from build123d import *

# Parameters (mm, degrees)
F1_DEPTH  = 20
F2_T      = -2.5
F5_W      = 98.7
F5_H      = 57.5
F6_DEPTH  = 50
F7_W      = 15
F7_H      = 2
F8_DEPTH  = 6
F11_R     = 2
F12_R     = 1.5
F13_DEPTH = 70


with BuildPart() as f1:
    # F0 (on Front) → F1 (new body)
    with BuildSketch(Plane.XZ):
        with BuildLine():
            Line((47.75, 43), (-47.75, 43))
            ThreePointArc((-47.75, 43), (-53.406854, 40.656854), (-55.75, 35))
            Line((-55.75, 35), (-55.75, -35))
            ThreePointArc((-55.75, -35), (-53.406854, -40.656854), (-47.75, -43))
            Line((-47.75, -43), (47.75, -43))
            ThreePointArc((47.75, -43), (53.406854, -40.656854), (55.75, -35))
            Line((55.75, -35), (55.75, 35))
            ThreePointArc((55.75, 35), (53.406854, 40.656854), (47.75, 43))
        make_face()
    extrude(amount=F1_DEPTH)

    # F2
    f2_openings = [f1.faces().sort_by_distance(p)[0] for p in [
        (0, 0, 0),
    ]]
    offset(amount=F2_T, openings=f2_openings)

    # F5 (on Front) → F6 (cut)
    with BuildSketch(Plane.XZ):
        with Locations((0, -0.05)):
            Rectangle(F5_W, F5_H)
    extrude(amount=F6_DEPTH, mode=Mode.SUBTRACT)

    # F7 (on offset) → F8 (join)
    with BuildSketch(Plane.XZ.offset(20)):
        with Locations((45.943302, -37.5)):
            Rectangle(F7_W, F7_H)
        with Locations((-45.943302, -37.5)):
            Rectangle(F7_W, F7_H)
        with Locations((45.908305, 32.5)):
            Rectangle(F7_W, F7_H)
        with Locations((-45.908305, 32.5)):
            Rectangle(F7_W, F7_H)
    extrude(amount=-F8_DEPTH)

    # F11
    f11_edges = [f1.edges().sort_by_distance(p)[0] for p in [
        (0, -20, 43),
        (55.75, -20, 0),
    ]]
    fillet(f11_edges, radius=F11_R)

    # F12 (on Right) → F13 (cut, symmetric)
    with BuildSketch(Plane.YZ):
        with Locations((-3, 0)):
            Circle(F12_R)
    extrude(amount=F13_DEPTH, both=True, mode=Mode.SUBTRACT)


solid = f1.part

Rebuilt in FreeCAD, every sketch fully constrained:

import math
import FreeCAD as App
import Part
import Sketcher
from FreeCAD import Vector


def edges_at(feature, points):
    """Names of the edges that pass closest to the given points."""
    edges = feature.Shape.Edges
    near = lambda p: min(range(len(edges)), key=lambda i: edges[i].distToShape(Part.Vertex(*p))[0])
    return sorted({f"Edge{near(p) + 1}" for p in points})


def faces_at(feature, points):
    """Names of the faces that lie closest to the given points."""
    faces = feature.Shape.Faces
    near = lambda p: min(range(len(faces)), key=lambda i: faces[i].distToShape(Part.Vertex(*p))[0])
    return sorted({f"Face{near(p) + 1}" for p in points})

doc = App.newDocument("Part")
body = doc.addObject("PartDesign::Body", "Body")

# Sketch on XZ plane
sketch1 = body.newObject("Sketcher::SketchObject", "Sketch")
sketch1.AttachmentSupport = (doc.getObject("XZ_Plane"), [""])
sketch1.MapMode = "FlatFace"
sketch1.addGeometry(Part.LineSegment(Vector(47.75, 43, 0), Vector(-47.75, 43, 0)), False)
sketch1.addGeometry(Part.ArcOfCircle(Part.Circle(Vector(-47.749999, 34.999999, 0), Vector(0, 0, 1), 8.000001), math.radians(90.000006), math.radians(179.999994)), False)
sketch1.addGeometry(Part.LineSegment(Vector(-55.75, 35, 0), Vector(-55.75, -35, 0)), False)
sketch1.addGeometry(Part.ArcOfCircle(Part.Circle(Vector(-47.749999, -34.999999, 0), Vector(0, 0, 1), 8.000001), math.radians(-179.999994), math.radians(-90.000006)), False)
sketch1.addGeometry(Part.LineSegment(Vector(-47.75, -43, 0), Vector(47.75, -43, 0)), False)
sketch1.addGeometry(Part.ArcOfCircle(Part.Circle(Vector(47.749999, -34.999999, 0), Vector(0, 0, 1), 8.000001), math.radians(-89.999994), math.radians(-0.000006)), False)
sketch1.addGeometry(Part.LineSegment(Vector(55.75, -35, 0), Vector(55.75, 35, 0)), False)
sketch1.addGeometry(Part.ArcOfCircle(Part.Circle(Vector(47.749999, 34.999999, 0), Vector(0, 0, 1), 8.000001), math.radians(0.000006), math.radians(89.999994)), False)
sketch1.addConstraint(Sketcher.Constraint("Tangent", 0, 2, 1, 1))
sketch1.addConstraint(Sketcher.Constraint("Tangent", 1, 2, 2, 1))
sketch1.addConstraint(Sketcher.Constraint("Tangent", 2, 2, 3, 1))
sketch1.addConstraint(Sketcher.Constraint("Tangent", 3, 2, 4, 1))
sketch1.addConstraint(Sketcher.Constraint("Tangent", 4, 2, 5, 1))
sketch1.addConstraint(Sketcher.Constraint("Tangent", 5, 2, 6, 1))
sketch1.addConstraint(Sketcher.Constraint("Tangent", 6, 2, 7, 1))
sketch1.addConstraint(Sketcher.Constraint("Tangent", 7, 2, 0, 1))
sketch1.addConstraint(Sketcher.Constraint("Horizontal", 0))
sketch1.addConstraint(Sketcher.Constraint("Vertical", 2))
sketch1.addConstraint(Sketcher.Constraint("Horizontal", 4))
sketch1.addConstraint(Sketcher.Constraint("Vertical", 6))
sketch1.addConstraint(Sketcher.Constraint("Equal", 1, 3))
sketch1.addConstraint(Sketcher.Constraint("Equal", 3, 5))
sketch1.addConstraint(Sketcher.Constraint("Equal", 5, 7))
sketch1.addConstraint(Sketcher.Constraint("Symmetric", 1, 3, 5, 3, -1, 1))
sketch1.addConstraint(Sketcher.Constraint("Radius", 1, 8.000001))
sketch1.addConstraint(Sketcher.Constraint("DistanceY", 2, 2, 2, 1, 70.0))
sketch1.addConstraint(Sketcher.Constraint("DistanceX", 0, 2, 0, 1, 95.5))
pad1 = body.newObject("PartDesign::Pad", "Pad")
pad1.Profile = sketch1
pad1.Length = 20
doc.recompute()

thickness = body.newObject("PartDesign::Thickness", "Thickness")
thickness.Base = (pad1, faces_at(pad1, [(0, 0, 0)]))
thickness.Value = 2.5
thickness.Reversed = True
thickness.Join = "Arc"

# Sketch on XZ plane
sketch2 = body.newObject("Sketcher::SketchObject", "Sketch001")
sketch2.AttachmentSupport = (doc.getObject("XZ_Plane"), [""])
sketch2.MapMode = "FlatFace"
sketch2.addGeometry(Part.LineSegment(Vector(-49.35, 28.7, 0), Vector(-49.35, -28.8, 0)), False)
sketch2.addGeometry(Part.LineSegment(Vector(-49.35, -28.8, 0), Vector(49.35, -28.8, 0)), False)
sketch2.addGeometry(Part.LineSegment(Vector(49.35, -28.8, 0), Vector(49.35, 28.7, 0)), False)
sketch2.addGeometry(Part.LineSegment(Vector(49.35, 28.7, 0), Vector(-49.35, 28.7, 0)), False)
sketch2.addConstraint(Sketcher.Constraint("Coincident", 0, 2, 1, 1))
sketch2.addConstraint(Sketcher.Constraint("Coincident", 1, 2, 2, 1))
sketch2.addConstraint(Sketcher.Constraint("Coincident", 2, 2, 3, 1))
sketch2.addConstraint(Sketcher.Constraint("Coincident", 3, 2, 0, 1))
sketch2.addConstraint(Sketcher.Constraint("Vertical", 0))
sketch2.addConstraint(Sketcher.Constraint("Horizontal", 1))
sketch2.addConstraint(Sketcher.Constraint("Vertical", 2))
sketch2.addConstraint(Sketcher.Constraint("Horizontal", 3))
sketch2.addConstraint(Sketcher.Constraint("DistanceX", 1, 1, 1, 2, 98.7))
sketch2.addConstraint(Sketcher.Constraint("DistanceY", 0, 2, 0, 1, 57.5))
sketch2.addConstraint(Sketcher.Constraint("DistanceY", 0, 2, -1, 1, 28.8))
sketch2.addConstraint(Sketcher.Constraint("DistanceX", 0, 2, -1, 1, 49.35))
pocket1 = body.newObject("PartDesign::Pocket", "Pocket")
pocket1.Profile = sketch2
pocket1.Length = 50
pocket1.Reversed = True

# Sketch on XZ plane
sketch3 = body.newObject("Sketcher::SketchObject", "Sketch002")
sketch3.AttachmentSupport = (doc.getObject("XZ_Plane"), [""])
sketch3.MapMode = "FlatFace"
sketch3.AttachmentOffset = App.Placement(Vector(0, 0, 20), App.Rotation())
sketch3.addGeometry(Part.LineSegment(Vector(38.443302, -36.5, 0), Vector(38.443302, -38.5, 0)), False)
sketch3.addGeometry(Part.LineSegment(Vector(38.443302, -38.5, 0), Vector(53.443302, -38.5, 0)), False)
sketch3.addGeometry(Part.LineSegment(Vector(53.443302, -38.5, 0), Vector(53.443302, -36.5, 0)), False)
sketch3.addGeometry(Part.LineSegment(Vector(53.443302, -36.5, 0), Vector(38.443302, -36.5, 0)), False)
sketch3.addGeometry(Part.LineSegment(Vector(-53.443302, -36.5, 0), Vector(-53.443302, -38.5, 0)), False)
sketch3.addGeometry(Part.LineSegment(Vector(-53.443302, -38.5, 0), Vector(-38.443302, -38.5, 0)), False)
sketch3.addGeometry(Part.LineSegment(Vector(-38.443302, -38.5, 0), Vector(-38.443302, -36.5, 0)), False)
sketch3.addGeometry(Part.LineSegment(Vector(-38.443302, -36.5, 0), Vector(-53.443302, -36.5, 0)), False)
sketch3.addGeometry(Part.LineSegment(Vector(38.408305, 33.5, 0), Vector(38.408305, 31.5, 0)), False)
sketch3.addGeometry(Part.LineSegment(Vector(38.408305, 31.5, 0), Vector(53.408305, 31.5, 0)), False)
sketch3.addGeometry(Part.LineSegment(Vector(53.408305, 31.5, 0), Vector(53.408305, 33.5, 0)), False)
sketch3.addGeometry(Part.LineSegment(Vector(53.408305, 33.5, 0), Vector(38.408305, 33.5, 0)), False)
sketch3.addGeometry(Part.LineSegment(Vector(-53.408305, 33.5, 0), Vector(-53.408305, 31.5, 0)), False)
sketch3.addGeometry(Part.LineSegment(Vector(-53.408305, 31.5, 0), Vector(-38.408305, 31.5, 0)), False)
sketch3.addGeometry(Part.LineSegment(Vector(-38.408305, 31.5, 0), Vector(-38.408305, 33.5, 0)), False)
sketch3.addGeometry(Part.LineSegment(Vector(-38.408305, 33.5, 0), Vector(-53.408305, 33.5, 0)), False)
sketch3.addConstraint(Sketcher.Constraint("Coincident", 0, 2, 1, 1))
sketch3.addConstraint(Sketcher.Constraint("Coincident", 1, 2, 2, 1))
sketch3.addConstraint(Sketcher.Constraint("Coincident", 2, 2, 3, 1))
sketch3.addConstraint(Sketcher.Constraint("Coincident", 3, 2, 0, 1))
sketch3.addConstraint(Sketcher.Constraint("Coincident", 4, 2, 5, 1))
sketch3.addConstraint(Sketcher.Constraint("Coincident", 5, 2, 6, 1))
sketch3.addConstraint(Sketcher.Constraint("Coincident", 6, 2, 7, 1))
sketch3.addConstraint(Sketcher.Constraint("Coincident", 7, 2, 4, 1))
sketch3.addConstraint(Sketcher.Constraint("Coincident", 8, 2, 9, 1))
sketch3.addConstraint(Sketcher.Constraint("Coincident", 9, 2, 10, 1))
sketch3.addConstraint(Sketcher.Constraint("Coincident", 10, 2, 11, 1))
sketch3.addConstraint(Sketcher.Constraint("Coincident", 11, 2, 8, 1))
sketch3.addConstraint(Sketcher.Constraint("Coincident", 12, 2, 13, 1))
sketch3.addConstraint(Sketcher.Constraint("Coincident", 13, 2, 14, 1))
sketch3.addConstraint(Sketcher.Constraint("Coincident", 14, 2, 15, 1))
sketch3.addConstraint(Sketcher.Constraint("Coincident", 15, 2, 12, 1))
sketch3.addConstraint(Sketcher.Constraint("Vertical", 0))
sketch3.addConstraint(Sketcher.Constraint("Horizontal", 1))
sketch3.addConstraint(Sketcher.Constraint("Vertical", 2))
sketch3.addConstraint(Sketcher.Constraint("Horizontal", 3))
sketch3.addConstraint(Sketcher.Constraint("Vertical", 4))
sketch3.addConstraint(Sketcher.Constraint("Horizontal", 5))
sketch3.addConstraint(Sketcher.Constraint("Vertical", 6))
sketch3.addConstraint(Sketcher.Constraint("Horizontal", 7))
sketch3.addConstraint(Sketcher.Constraint("Vertical", 8))
sketch3.addConstraint(Sketcher.Constraint("Horizontal", 9))
sketch3.addConstraint(Sketcher.Constraint("Vertical", 10))
sketch3.addConstraint(Sketcher.Constraint("Horizontal", 11))
sketch3.addConstraint(Sketcher.Constraint("Vertical", 12))
sketch3.addConstraint(Sketcher.Constraint("Horizontal", 13))
sketch3.addConstraint(Sketcher.Constraint("Vertical", 14))
sketch3.addConstraint(Sketcher.Constraint("Horizontal", 15))
sketch3.addConstraint(Sketcher.Constraint("Symmetric", 1, 2, 4, 2, -2))
sketch3.addConstraint(Sketcher.Constraint("Symmetric", 3, 2, 6, 2, -2))
sketch3.addConstraint(Sketcher.Constraint("Symmetric", 9, 2, 12, 2, -2))
sketch3.addConstraint(Sketcher.Constraint("Symmetric", 11, 2, 14, 2, -2))
sketch3.addConstraint(Sketcher.Constraint("Equal", 7, 9))
sketch3.addConstraint(Sketcher.Constraint("Equal", 6, 8))
sketch3.addConstraint(Sketcher.Constraint("DistanceX", 1, 1, 1, 2, 15.0))
sketch3.addConstraint(Sketcher.Constraint("DistanceY", 0, 2, 0, 1, 2.0))
sketch3.addConstraint(Sketcher.Constraint("DistanceY", 3, 2, 8, 2, 68.0))
sketch3.addConstraint(Sketcher.Constraint("DistanceY", 0, 2, -1, 1, 38.5))
sketch3.addConstraint(Sketcher.Constraint("DistanceX", 12, 2, 8, 2, 91.81661))
sketch3.addConstraint(Sketcher.Constraint("DistanceX", -1, 1, 0, 2, 38.443302))
pad2 = body.newObject("PartDesign::Pad", "Pad001")
pad2.Profile = sketch3
pad2.Length = 6
pad2.Reversed = True
doc.recompute()

fillet = body.newObject("PartDesign::Fillet", "Fillet")
fillet.Base = (pad2, edges_at(pad2, [(0, -20, 43), (55.75, -20, 0)]))
fillet.Radius = 2

# Sketch on YZ plane
sketch4 = body.newObject("Sketcher::SketchObject", "Sketch003")
sketch4.AttachmentSupport = (doc.getObject("YZ_Plane"), [""])
sketch4.MapMode = "FlatFace"
sketch4.addGeometry(Part.Circle(Vector(-3, 0, 0), Vector(0, 0, 1), 1.5), False)
sketch4.addConstraint(Sketcher.Constraint("PointOnObject", 0, 3, -1))
sketch4.addConstraint(Sketcher.Constraint("Diameter", 0, 3.0))
sketch4.addConstraint(Sketcher.Constraint("DistanceX", 0, 3, -1, 1, 3.0))
pocket2 = body.newObject("PartDesign::Pocket", "Pocket001")
pocket2.Profile = sketch4
pocket2.Length = 140
pocket2.Midplane = True

doc.recompute()
